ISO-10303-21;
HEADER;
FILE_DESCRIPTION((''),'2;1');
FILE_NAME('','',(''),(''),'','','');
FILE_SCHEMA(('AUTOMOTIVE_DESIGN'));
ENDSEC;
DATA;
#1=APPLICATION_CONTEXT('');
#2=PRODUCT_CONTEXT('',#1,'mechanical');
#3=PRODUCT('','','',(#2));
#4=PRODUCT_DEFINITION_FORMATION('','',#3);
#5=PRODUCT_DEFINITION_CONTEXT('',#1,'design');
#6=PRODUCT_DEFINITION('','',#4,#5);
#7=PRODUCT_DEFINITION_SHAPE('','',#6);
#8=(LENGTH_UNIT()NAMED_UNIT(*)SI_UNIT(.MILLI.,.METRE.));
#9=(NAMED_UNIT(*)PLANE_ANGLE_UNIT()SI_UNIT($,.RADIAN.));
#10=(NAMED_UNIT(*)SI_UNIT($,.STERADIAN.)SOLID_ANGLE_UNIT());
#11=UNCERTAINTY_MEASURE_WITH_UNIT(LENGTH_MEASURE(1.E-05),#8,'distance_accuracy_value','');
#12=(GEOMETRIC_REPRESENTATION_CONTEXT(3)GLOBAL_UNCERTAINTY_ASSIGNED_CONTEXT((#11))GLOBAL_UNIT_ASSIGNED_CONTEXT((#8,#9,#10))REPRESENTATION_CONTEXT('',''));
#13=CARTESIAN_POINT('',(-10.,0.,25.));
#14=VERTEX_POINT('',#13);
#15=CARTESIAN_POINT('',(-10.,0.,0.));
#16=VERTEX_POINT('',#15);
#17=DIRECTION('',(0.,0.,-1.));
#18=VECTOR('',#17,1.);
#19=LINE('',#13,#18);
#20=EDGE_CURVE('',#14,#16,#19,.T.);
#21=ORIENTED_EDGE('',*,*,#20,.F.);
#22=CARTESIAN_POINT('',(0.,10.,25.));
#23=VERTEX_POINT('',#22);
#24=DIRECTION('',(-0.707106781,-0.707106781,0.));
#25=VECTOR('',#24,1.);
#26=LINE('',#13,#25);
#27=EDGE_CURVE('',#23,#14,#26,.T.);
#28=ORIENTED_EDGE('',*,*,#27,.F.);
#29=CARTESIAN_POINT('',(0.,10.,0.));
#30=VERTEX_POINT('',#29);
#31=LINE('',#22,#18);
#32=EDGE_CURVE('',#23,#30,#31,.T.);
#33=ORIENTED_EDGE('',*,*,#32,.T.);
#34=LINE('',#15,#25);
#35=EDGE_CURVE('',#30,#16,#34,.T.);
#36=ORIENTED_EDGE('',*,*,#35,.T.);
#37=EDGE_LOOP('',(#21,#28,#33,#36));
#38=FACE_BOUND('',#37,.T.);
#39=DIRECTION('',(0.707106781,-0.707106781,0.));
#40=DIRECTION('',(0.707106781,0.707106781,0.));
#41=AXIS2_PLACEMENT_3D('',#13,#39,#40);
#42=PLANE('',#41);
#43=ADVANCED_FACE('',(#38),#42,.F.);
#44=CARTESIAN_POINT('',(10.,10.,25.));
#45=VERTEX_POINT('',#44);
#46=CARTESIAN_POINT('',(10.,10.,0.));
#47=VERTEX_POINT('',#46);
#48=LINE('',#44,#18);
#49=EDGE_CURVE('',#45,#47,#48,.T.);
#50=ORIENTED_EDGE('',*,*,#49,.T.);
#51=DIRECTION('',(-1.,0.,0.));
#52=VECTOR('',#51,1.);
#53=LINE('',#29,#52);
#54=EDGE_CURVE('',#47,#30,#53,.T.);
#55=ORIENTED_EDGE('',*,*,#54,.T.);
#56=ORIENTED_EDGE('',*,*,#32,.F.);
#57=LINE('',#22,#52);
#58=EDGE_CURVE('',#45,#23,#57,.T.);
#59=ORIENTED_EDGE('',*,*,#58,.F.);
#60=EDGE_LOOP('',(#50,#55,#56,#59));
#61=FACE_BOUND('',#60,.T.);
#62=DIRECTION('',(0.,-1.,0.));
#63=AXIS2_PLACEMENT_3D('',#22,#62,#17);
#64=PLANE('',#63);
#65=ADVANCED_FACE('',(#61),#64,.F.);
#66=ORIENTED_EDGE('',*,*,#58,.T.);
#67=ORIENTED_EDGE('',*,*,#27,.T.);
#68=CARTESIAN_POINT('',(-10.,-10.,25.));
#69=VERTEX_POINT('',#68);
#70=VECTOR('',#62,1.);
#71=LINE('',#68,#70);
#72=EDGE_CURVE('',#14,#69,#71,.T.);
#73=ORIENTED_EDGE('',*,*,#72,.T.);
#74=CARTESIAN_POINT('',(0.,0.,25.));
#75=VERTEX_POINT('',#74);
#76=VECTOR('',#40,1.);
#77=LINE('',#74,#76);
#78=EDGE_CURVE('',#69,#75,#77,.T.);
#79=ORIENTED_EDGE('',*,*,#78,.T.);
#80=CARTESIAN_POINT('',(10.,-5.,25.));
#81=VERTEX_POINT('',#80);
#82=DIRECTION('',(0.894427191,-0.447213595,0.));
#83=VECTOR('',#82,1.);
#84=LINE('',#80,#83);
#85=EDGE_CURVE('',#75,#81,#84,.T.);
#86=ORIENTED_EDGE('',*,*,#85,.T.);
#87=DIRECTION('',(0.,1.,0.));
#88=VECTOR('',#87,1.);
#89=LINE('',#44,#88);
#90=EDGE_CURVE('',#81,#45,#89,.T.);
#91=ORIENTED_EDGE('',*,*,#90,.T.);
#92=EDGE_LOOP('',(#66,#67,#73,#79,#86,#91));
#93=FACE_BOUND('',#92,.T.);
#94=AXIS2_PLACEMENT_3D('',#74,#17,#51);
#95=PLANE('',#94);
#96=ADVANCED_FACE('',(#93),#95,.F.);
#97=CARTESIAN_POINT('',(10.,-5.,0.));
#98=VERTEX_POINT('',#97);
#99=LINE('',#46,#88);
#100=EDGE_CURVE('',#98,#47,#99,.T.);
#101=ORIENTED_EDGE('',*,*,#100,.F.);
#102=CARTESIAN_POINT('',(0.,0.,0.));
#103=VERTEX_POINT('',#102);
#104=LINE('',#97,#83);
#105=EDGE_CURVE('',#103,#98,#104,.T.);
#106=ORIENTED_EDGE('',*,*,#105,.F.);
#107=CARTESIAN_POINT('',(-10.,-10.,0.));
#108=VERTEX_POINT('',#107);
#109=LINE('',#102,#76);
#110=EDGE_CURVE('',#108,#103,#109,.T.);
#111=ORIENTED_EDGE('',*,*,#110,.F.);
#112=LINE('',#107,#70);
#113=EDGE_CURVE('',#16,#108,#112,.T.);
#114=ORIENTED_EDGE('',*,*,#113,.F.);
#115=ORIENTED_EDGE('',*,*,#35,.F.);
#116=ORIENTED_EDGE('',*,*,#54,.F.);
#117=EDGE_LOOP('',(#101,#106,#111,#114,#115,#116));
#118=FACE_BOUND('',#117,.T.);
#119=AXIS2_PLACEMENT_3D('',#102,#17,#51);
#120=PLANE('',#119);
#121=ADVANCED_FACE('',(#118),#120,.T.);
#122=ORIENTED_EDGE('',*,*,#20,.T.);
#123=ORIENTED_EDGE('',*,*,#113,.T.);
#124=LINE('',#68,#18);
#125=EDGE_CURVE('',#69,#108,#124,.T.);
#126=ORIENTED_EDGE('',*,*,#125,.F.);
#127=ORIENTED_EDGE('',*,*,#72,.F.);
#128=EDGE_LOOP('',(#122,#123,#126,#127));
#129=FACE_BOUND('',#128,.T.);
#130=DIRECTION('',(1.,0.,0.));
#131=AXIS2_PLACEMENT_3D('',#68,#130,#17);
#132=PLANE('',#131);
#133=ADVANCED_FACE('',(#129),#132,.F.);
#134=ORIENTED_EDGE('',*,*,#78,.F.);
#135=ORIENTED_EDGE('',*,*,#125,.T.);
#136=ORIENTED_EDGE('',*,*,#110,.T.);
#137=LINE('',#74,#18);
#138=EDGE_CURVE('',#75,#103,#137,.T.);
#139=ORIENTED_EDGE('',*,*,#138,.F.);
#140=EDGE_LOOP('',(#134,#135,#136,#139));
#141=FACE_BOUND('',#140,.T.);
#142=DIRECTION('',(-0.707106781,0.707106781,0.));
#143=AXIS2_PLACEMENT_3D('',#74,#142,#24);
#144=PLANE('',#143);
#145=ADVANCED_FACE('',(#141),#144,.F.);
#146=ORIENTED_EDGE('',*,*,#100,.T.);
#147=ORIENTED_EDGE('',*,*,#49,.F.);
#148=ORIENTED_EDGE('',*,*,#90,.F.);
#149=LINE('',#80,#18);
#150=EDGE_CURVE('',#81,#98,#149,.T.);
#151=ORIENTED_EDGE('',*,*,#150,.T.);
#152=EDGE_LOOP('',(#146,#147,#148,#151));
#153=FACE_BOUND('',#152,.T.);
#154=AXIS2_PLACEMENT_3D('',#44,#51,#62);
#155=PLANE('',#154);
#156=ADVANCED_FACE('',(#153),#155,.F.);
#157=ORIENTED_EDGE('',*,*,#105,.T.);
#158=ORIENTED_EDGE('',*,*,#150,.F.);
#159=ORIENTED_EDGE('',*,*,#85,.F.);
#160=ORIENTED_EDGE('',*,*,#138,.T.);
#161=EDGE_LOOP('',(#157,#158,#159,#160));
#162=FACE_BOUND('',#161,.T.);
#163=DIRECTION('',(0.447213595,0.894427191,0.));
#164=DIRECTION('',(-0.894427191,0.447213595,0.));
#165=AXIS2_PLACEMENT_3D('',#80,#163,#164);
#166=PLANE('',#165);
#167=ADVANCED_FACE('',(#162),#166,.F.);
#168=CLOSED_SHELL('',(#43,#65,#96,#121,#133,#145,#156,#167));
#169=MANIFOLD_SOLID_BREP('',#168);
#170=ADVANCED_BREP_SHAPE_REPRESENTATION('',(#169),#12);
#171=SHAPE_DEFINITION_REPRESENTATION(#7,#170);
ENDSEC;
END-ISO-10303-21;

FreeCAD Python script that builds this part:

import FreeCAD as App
import Part
import Sketcher
Q = App.Units.Quantity


def add_polygon(sketch, points):
    """Adds a closed chain of lines whose ends are joined by coincident constraints."""
    first, n = sketch.GeometryCount, len(points)
    for a, b in zip(points, points[1:] + points[:1]):
        sketch.addGeometry(Part.LineSegment(App.Vector(*a, 0), App.Vector(*b, 0)), False)
    for i in range(n):
        sketch.addConstraint(Sketcher.Constraint("Coincident", first + i, 2, first + (i + 1) % n, 1))

doc = App.newDocument("Part")
body = doc.addObject("PartDesign::Body", "Body")

# Sketch on XY plane
sketch1 = body.newObject("Sketcher::SketchObject", "Sketch")
sketch1.AttachmentSupport = (doc.getObject("XY_Plane"), [""])
sketch1.MapMode = "FlatFace"
add_polygon(sketch1, [(0, 10), (-10, 0), (-10, -10), (0, 0), (10, -5), (10, 10)])  # lines 0-5
sketch1.addConstraint([
    Sketcher.Constraint("Vertical", 1),
    Sketcher.Constraint("Vertical", 4),
    Sketcher.Constraint("Horizontal", 5),
    Sketcher.Constraint("Coincident", 2, 2, -1, 1),
    Sketcher.Constraint("Symmetric", 1, 2, 4, 2, -1, 1),
    Sketcher.Constraint("PointOnObject", 0, 2, -1),
    Sketcher.Constraint("PointOnObject", 5, 2, -2),
    Sketcher.Constraint("Equal", 5, 1),
    Sketcher.Constraint("DistanceX", 5, 2, 5, 1, Q("10 mm")),
    Sketcher.Constraint("DistanceY", 4, 1, 4, 2, Q("15 mm")),
])
pad1 = body.newObject("PartDesign::Pad", "Pad")
pad1.Profile = sketch1
pad1.Length = 25

doc.recompute()
